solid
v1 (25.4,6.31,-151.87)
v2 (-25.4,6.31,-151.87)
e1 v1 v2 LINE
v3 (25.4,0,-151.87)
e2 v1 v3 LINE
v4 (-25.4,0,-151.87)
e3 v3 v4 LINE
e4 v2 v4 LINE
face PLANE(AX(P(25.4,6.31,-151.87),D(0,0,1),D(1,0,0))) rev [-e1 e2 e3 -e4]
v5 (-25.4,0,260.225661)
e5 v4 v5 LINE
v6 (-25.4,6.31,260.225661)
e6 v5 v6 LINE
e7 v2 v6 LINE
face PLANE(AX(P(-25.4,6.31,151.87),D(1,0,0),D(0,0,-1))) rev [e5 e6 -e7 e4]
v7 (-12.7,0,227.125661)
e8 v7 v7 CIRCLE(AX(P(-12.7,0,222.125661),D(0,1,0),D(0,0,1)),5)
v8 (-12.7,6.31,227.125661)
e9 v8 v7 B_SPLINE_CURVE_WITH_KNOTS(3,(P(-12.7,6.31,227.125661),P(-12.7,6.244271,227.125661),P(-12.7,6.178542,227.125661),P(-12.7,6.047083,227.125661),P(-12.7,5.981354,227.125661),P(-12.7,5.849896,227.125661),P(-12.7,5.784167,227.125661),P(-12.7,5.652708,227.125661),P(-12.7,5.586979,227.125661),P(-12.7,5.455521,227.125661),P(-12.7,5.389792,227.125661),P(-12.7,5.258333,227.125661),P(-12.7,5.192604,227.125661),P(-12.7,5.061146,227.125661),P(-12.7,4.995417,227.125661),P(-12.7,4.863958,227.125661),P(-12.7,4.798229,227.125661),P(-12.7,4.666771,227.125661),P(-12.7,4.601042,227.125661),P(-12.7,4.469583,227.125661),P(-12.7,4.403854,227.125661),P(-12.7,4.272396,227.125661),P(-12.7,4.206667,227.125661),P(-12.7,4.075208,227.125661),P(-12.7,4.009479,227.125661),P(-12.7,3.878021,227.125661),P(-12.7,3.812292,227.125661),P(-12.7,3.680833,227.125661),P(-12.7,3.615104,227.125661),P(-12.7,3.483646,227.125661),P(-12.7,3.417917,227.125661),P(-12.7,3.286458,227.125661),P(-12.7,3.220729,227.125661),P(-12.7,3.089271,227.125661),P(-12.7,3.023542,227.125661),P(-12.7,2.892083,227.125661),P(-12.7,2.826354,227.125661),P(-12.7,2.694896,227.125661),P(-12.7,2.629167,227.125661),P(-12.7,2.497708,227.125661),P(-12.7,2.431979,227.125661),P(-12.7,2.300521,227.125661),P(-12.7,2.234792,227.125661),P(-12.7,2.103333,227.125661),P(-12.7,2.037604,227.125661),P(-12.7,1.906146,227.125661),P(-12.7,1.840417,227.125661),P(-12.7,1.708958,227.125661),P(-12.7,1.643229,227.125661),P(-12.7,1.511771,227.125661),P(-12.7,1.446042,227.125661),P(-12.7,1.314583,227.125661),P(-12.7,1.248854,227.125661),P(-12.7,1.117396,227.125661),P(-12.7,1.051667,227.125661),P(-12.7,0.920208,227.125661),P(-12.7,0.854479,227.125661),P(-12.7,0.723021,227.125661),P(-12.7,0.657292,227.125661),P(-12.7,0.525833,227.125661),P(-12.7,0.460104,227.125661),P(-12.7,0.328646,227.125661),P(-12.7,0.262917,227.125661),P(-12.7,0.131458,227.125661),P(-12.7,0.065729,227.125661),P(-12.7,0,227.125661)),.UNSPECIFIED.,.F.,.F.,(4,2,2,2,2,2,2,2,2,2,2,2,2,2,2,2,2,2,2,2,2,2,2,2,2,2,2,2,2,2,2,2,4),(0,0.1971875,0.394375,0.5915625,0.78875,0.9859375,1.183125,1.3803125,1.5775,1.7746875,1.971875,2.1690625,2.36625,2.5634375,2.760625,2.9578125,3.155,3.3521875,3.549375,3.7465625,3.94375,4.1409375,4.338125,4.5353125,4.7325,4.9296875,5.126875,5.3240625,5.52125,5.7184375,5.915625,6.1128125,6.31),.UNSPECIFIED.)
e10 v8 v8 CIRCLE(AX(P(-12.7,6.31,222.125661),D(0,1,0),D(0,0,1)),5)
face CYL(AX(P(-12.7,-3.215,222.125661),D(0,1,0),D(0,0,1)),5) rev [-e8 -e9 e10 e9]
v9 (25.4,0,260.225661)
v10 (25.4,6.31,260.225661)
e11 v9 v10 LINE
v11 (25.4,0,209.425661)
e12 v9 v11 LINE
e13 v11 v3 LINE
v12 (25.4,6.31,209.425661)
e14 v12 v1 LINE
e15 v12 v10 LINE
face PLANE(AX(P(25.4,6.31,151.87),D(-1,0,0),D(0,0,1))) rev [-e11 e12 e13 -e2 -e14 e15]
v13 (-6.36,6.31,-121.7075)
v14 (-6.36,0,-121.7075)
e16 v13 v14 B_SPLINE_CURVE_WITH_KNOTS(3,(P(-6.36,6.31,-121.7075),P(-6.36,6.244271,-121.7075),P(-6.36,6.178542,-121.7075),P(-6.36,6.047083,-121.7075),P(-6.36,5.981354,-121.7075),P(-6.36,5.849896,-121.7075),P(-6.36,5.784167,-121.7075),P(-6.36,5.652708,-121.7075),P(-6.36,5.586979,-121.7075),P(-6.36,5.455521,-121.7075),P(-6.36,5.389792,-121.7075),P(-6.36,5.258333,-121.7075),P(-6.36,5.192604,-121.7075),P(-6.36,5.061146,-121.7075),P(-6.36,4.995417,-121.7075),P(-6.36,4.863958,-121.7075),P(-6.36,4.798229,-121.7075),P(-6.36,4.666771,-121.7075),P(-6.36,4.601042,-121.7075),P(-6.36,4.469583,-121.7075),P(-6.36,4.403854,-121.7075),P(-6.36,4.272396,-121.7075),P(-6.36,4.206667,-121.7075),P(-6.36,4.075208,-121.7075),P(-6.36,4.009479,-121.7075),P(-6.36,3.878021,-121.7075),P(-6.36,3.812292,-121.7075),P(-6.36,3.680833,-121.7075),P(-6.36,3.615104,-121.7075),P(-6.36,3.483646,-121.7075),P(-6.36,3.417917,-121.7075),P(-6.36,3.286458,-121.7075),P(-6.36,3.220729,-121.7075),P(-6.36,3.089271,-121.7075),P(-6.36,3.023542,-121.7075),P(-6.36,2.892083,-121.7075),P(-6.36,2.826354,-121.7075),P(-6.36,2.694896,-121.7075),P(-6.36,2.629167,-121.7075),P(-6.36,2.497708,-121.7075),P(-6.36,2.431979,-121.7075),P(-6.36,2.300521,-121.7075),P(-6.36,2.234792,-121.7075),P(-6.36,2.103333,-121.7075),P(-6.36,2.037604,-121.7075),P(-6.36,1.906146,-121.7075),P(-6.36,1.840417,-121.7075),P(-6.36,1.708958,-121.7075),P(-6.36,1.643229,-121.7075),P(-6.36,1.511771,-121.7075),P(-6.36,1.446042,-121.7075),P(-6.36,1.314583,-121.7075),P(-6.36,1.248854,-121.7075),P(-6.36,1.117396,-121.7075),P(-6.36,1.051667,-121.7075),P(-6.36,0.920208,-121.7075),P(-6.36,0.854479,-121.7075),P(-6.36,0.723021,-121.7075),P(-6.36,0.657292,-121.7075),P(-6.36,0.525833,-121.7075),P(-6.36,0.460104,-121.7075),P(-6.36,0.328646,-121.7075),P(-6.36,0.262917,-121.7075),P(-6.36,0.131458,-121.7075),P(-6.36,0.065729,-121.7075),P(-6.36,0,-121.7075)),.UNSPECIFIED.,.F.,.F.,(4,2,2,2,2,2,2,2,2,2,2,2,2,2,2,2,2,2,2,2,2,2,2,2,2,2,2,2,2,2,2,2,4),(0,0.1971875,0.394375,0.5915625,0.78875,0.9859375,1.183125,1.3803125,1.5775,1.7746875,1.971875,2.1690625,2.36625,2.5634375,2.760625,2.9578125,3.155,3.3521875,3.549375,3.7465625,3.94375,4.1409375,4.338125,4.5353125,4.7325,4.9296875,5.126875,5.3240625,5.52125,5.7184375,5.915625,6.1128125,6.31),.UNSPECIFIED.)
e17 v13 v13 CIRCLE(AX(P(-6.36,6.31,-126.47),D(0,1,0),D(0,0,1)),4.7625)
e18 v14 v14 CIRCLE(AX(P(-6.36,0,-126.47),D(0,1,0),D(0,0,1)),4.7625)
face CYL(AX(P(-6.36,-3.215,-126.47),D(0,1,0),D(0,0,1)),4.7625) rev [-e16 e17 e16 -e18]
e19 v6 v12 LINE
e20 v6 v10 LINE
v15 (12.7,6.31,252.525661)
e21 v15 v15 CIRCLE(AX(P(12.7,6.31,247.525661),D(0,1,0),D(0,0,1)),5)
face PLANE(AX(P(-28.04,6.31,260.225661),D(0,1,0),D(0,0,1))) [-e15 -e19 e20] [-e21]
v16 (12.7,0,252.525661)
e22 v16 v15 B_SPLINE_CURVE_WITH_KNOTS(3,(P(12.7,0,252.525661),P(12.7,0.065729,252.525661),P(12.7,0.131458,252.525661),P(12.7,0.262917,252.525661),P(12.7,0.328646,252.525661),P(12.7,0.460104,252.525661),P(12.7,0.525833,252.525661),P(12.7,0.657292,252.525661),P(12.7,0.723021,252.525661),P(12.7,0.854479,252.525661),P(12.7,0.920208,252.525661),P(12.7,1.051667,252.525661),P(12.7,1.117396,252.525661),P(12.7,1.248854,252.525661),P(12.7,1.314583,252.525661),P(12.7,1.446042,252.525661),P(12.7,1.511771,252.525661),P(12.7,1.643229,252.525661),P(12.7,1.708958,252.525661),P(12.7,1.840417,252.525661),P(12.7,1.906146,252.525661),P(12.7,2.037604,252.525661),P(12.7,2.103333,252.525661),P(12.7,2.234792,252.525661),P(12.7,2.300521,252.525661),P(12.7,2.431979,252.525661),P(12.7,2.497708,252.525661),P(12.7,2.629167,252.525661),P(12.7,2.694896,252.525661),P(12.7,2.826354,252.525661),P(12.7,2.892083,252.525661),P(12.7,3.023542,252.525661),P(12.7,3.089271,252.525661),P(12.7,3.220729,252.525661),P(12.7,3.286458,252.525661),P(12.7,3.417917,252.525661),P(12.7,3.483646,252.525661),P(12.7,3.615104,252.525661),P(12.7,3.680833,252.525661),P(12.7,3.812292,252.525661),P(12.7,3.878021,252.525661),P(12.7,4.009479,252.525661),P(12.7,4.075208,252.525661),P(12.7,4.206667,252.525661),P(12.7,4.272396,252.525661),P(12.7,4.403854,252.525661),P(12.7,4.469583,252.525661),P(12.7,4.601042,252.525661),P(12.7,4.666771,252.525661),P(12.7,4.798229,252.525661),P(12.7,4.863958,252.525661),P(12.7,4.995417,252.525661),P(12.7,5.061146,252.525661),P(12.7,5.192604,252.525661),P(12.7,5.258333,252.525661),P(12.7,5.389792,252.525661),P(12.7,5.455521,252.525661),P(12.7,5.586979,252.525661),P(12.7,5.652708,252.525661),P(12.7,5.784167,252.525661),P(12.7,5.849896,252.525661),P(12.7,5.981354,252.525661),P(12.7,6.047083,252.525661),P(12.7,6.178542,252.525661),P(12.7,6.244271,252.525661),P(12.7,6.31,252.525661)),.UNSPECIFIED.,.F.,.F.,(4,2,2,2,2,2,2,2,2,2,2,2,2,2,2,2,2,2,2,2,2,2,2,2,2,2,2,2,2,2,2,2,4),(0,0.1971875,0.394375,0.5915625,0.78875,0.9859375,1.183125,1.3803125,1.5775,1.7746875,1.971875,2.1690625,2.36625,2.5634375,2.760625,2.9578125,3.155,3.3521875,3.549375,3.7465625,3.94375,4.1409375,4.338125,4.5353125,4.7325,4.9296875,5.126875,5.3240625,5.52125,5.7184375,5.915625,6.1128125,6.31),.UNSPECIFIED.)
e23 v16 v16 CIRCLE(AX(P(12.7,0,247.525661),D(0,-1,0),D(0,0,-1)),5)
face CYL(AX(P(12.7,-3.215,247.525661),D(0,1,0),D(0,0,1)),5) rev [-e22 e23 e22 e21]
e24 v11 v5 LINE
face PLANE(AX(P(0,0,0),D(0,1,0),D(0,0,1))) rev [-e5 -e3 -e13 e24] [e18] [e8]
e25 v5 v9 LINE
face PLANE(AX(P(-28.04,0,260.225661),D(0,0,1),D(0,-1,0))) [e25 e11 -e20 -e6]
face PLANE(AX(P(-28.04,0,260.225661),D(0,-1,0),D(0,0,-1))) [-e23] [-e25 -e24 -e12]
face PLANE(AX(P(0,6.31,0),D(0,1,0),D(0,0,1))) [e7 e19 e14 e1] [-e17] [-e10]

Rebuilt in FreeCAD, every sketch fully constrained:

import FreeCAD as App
import Part
import Sketcher
Q = App.Units.Quantity


def add_polygon(sketch, points):
    """Adds a closed chain of lines whose ends are joined by coincident constraints."""
    first, n = sketch.GeometryCount, len(points)
    for a, b in zip(points, points[1:] + points[:1]):
        sketch.addGeometry(Part.LineSegment(App.Vector(*a, 0), App.Vector(*b, 0)), False)
    for i in range(n):
        sketch.addConstraint(Sketcher.Constraint("Coincident", first + i, 2, first + (i + 1) % n, 1))

doc = App.newDocument("Part")
body = doc.addObject("PartDesign::Body", "Body")

sketch1 = body.newObject("Sketcher::SketchObject", "Sketch")
sketch1.AttachmentSupport = (doc.getObject("XZ_Plane"), [""])
sketch1.MapMode = "FlatFace"
add_polygon(sketch1, [(-25, -152), (-25, 152), (25, 152), (25, -152)])
sketch1.addConstraint(Sketcher.Constraint("Vertical", 0))
sketch1.addConstraint(Sketcher.Constraint("Horizontal", 1))
sketch1.addConstraint(Sketcher.Constraint("Vertical", 2))
sketch1.addConstraint(Sketcher.Constraint("Horizontal", 3))
sketch1.addConstraint(Sketcher.Constraint("Symmetric", 0, 2, 2, 2, -1, 1))
sketch1.addConstraint(Sketcher.Constraint("DistanceX", 1, 1, 1, 2, Q("50.8 mm")))
sketch1.addConstraint(Sketcher.Constraint("DistanceY", 0, 1, 0, 2, Q("303.74 mm")))
pad1 = body.newObject("PartDesign::Pad", "Pad")
pad1.Profile = sketch1
pad1.Length = 6.31
pad1.Reversed = True

sketch2 = body.newObject("Sketcher::SketchObject", "Sketch001")
sketch2.AttachmentSupport = (doc.getObject("XY_Plane"), [""])
sketch2.MapMode = "FlatFace"
sketch2.AttachmentOffset = App.Placement(App.Vector(0, 0, 151.87), App.Rotation())
add_polygon(sketch2, [(-25, 6), (-25, 0), (25, 0), (25, 6)])
sketch2.addConstraint(Sketcher.Constraint("Vertical", 0))
sketch2.addConstraint(Sketcher.Constraint("Horizontal", 1))
sketch2.addConstraint(Sketcher.Constraint("Vertical", 2))
sketch2.addConstraint(Sketcher.Constraint("Horizontal", 3))
sketch2.addConstraint(Sketcher.Constraint("Symmetric", 0, 2, 1, 2, -1, 1))
sketch2.addConstraint(Sketcher.Constraint("DistanceX", 1, 1, 1, 2, Q("50.8 mm")))
sketch2.addConstraint(Sketcher.Constraint("DistanceY", 0, 2, 0, 1, Q("6.31 mm")))

sketch3 = body.newObject("Sketcher::SketchObject", "Sketch002")
sketch3.AttachmentSupport = (doc.getObject("XZ_Plane"), [""])
sketch3.MapMode = "FlatFace"
sketch3.AttachmentOffset = App.Placement(App.Vector(0, 0, -3.155), App.Rotation())
sketch3.addGeometry(Part.LineSegment(App.Vector(0, 152, 0), App.Vector(0, 235, 0)), False)
sketch3.addGeometry(Part.LineSegment(App.Vector(0, 235, 0), App.Vector(306, 235, 0)), False)
sketch3.addConstraint(Sketcher.Constraint("Coincident", 0, 2, 1, 1))
sketch3.addConstraint(Sketcher.Constraint("Vertical", 0))
sketch3.addConstraint(Sketcher.Constraint("Horizontal", 1))
sketch3.addConstraint(Sketcher.Constraint("PointOnObject", 0, 1, -2))
sketch3.addConstraint(Sketcher.Constraint("DistanceX", 1, 1, 1, 2, Q("306 mm")))
sketch3.addConstraint(Sketcher.Constraint("DistanceY", -1, 1, 0, 1, Q("151.87 mm")))
sketch3.addConstraint(Sketcher.Constraint("DistanceY", 0, 1, 0, 2, Q("82.955661 mm")))
doc.recompute()

additivepipe = body.newObject("PartDesign::AdditivePipe", "AdditivePipe")
additivepipe.Profile = sketch2
additivepipe.Spine = (sketch3, ["Edge1", "Edge2"])
additivepipe.Transition = "Right corner"

sketch4 = body.newObject("Sketcher::SketchObject", "Sketch003")
sketch4.AttachmentSupport = (doc.getObject("XZ_Plane"), [""])
sketch4.MapMode = "FlatFace"
add_polygon(sketch4, [(300, 260), (300, 209), (306, 209), (306, 260)])
sketch4.addConstraint(Sketcher.Constraint("Vertical", 0))
sketch4.addConstraint(Sketcher.Constraint("Horizontal", 1))
sketch4.addConstraint(Sketcher.Constraint("Vertical", 2))
sketch4.addConstraint(Sketcher.Constraint("Horizontal", 3))
sketch4.addConstraint(Sketcher.Constraint("DistanceY", 0, 2, 0, 1, Q("50.8 mm")))
sketch4.addConstraint(Sketcher.Constraint("DistanceX", -1, 1, 1, 2, Q("306 mm")))
sketch4.addConstraint(Sketcher.Constraint("DistanceX", 1, 1, 1, 2, Q("6.31 mm")))
sketch4.addConstraint(Sketcher.Constraint("DistanceY", -1, 1, 0, 2, Q("209.425661 mm")))
pad2 = body.newObject("PartDesign::Pad", "Pad001")
pad2.Profile = sketch4
pad2.Length = 60

sketch5 = body.newObject("Sketcher::SketchObject", "Sketch004")
sketch5.AttachmentSupport = (doc.getObject("XZ_Plane"), [""])
sketch5.MapMode = "FlatFace"
sketch5.AttachmentOffset = App.Placement(App.Vector(0, 0, -6.31), App.Rotation())
add_polygon(sketch5, [(19, -152), (19, -101), (25, -101), (25, -152)])
sketch5.addConstraint(Sketcher.Constraint("Vertical", 0))
sketch5.addConstraint(Sketcher.Constraint("Horizontal", 1))
sketch5.addConstraint(Sketcher.Constraint("Vertical", 2))
sketch5.addConstraint(Sketcher.Constraint("Horizontal", 3))
sketch5.addConstraint(Sketcher.Constraint("DistanceY", 0, 1, 0, 2, Q("50.8 mm")))
sketch5.addConstraint(Sketcher.Constraint("DistanceX", 1, 1, 1, 2, Q("6.31 mm")))
sketch5.addConstraint(Sketcher.Constraint("DistanceX", -1, 1, 1, 2, Q("25.4 mm")))
sketch5.addConstraint(Sketcher.Constraint("DistanceY", 0, 2, -1, 1, Q("101.07 mm")))
pad3 = body.newObject("PartDesign::Pad", "Pad002")
pad3.Profile = sketch5
pad3.Length = 50
pad3.Reversed = True

sketch6 = body.newObject("Sketcher::SketchObject", "Sketch005")
sketch6.AttachmentSupport = (doc.getObject("YZ_Plane"), [""])
sketch6.MapMode = "FlatFace"
sketch6.AttachmentOffset = App.Placement(App.Vector(0, 0, 19.09), App.Rotation())
sketch6.addGeometry(Part.Circle(App.Vector(29, -111, 0), App.Vector(0, 0, 1), 6), False)
sketch6.addGeometry(Part.Circle(App.Vector(29, -143, 0), App.Vector(0, 0, 1), 6), False)
sketch6.addConstraint(Sketcher.Constraint("Equal", 0, 1))
sketch6.addConstraint(Sketcher.Constraint("Vertical", 0, 3, 1, 3))
sketch6.addConstraint(Sketcher.Constraint("Diameter", 0, Q("12.7 mm")))
sketch6.addConstraint(Sketcher.Constraint("DistanceX", -1, 1, 0, 3, Q("29 mm")))
sketch6.addConstraint(Sketcher.Constraint("DistanceY", 1, 3, 0, 3, Q("32 mm")))
sketch6.addConstraint(Sketcher.Constraint("DistanceY", 0, 3, -1, 1, Q("111.12 mm")))
pocket1 = body.newObject("PartDesign::Pocket", "Pocket")
pocket1.Profile = sketch6
pocket1.Length = 10
pocket1.Reversed = True

sketch7 = body.newObject("Sketcher::SketchObject", "Sketch006")
sketch7.AttachmentSupport = (doc.getObject("YZ_Plane"), [""])
sketch7.MapMode = "FlatFace"
sketch7.AttachmentOffset = App.Placement(App.Vector(0, 0, 306), App.Rotation())
add_polygon(sketch7, [(-9, 260), (-60, 260), (-60, 254), (-9, 254)])
sketch7.addConstraint(Sketcher.Constraint("Horizontal", 0))
sketch7.addConstraint(Sketcher.Constraint("Vertical", 1))
sketch7.addConstraint(Sketcher.Constraint("Horizontal", 2))
sketch7.addConstraint(Sketcher.Constraint("Vertical", 3))
sketch7.addConstraint(Sketcher.Constraint("DistanceX", 0, 2, 0, 1, Q("50.8 mm")))
sketch7.addConstraint(Sketcher.Constraint("DistanceX", 0, 2, -1, 1, Q("60 mm")))
sketch7.addConstraint(Sketcher.Constraint("DistanceY", 1, 2, 1, 1, Q("6.31 mm")))
sketch7.addConstraint(Sketcher.Constraint("DistanceY", -1, 1, 0, 2, Q("260.225661 mm")))
pad4 = body.newObject("PartDesign::Pad", "Pad003")
pad4.Profile = sketch7
pad4.Length = 50.8

sketch8 = body.newObject("Sketcher::SketchObject", "Sketch007")
sketch8.AttachmentSupport = (doc.getObject("YZ_Plane"), [""])
sketch8.MapMode = "FlatFace"
sketch8.AttachmentOffset = App.Placement(App.Vector(0, 0, 19.09), App.Rotation())
add_polygon(sketch8, [(56, -152), (6, -152), (6, -101), (56, -101)])
sketch8.addConstraint(Sketcher.Constraint("Horizontal", 0))
sketch8.addConstraint(Sketcher.Constraint("Vertical", 1))
sketch8.addConstraint(Sketcher.Constraint("Horizontal", 2))
sketch8.addConstraint(Sketcher.Constraint("Vertical", 3))
sketch8.addConstraint(Sketcher.Constraint("DistanceX", 0, 2, 0, 1, Q("50 mm")))
sketch8.addConstraint(Sketcher.Constraint("DistanceY", 1, 1, 1, 2, Q("50.8 mm")))
sketch8.addConstraint(Sketcher.Constraint("DistanceX", -1, 1, 0, 2, Q("6.31 mm")))
sketch8.addConstraint(Sketcher.Constraint("DistanceY", 0, 2, -1, 1, Q("151.87 mm")))
pocket2 = body.newObject("PartDesign::Pocket", "Pocket001")
pocket2.Profile = sketch8
pocket2.Length = 10
pocket2.Reversed = True

sketch9 = body.newObject("Sketcher::SketchObject", "Sketch008")
sketch9.AttachmentSupport = (doc.getObject("XZ_Plane"), [""])
sketch9.MapMode = "FlatFace"
sketch9.AttachmentOffset = App.Placement(App.Vector(0, 0, -6.31), App.Rotation())
add_polygon(sketch9, [(25, 209), (25, 260), (367, 260), (367, 209)])
sketch9.addConstraint(Sketcher.Constraint("Vertical", 0))
sketch9.addConstraint(Sketcher.Constraint("Horizontal", 1))
sketch9.addConstraint(Sketcher.Constraint("Vertical", 2))
sketch9.addConstraint(Sketcher.Constraint("Horizontal", 3))
sketch9.addConstraint(Sketcher.Constraint("DistanceY", 0, 1, 0, 2, Q("50.8 mm")))
sketch9.addConstraint(Sketcher.Constraint("DistanceX", -1, 1, 0, 2, Q("25.4 mm")))
sketch9.addConstraint(Sketcher.Constraint("DistanceX", 1, 1, 1, 2, Q("341.529605 mm")))
sketch9.addConstraint(Sketcher.Constraint("DistanceY", -1, 1, 0, 2, Q("260.225661 mm")))
pocket3 = body.newObject("PartDesign::Pocket", "Pocket002")
pocket3.Profile = sketch9
pocket3.Length = 97.8
pocket3.Reversed = True

sketch10 = body.newObject("Sketcher::SketchObject", "Sketch009")
sketch10.AttachmentSupport = (doc.getObject("XZ_Plane"), [""])
sketch10.MapMode = "FlatFace"
sketch10.AttachmentOffset = App.Placement(App.Vector(0, 0, -6.31), App.Rotation())
sketch10.addGeometry(Part.Circle(App.Vector(-6.4, -126.5, 0), App.Vector(0, 0, 1), 4.8), False)
sketch10.addConstraint(Sketcher.Constraint("Diameter", 0, Q("9.525 mm")))
sketch10.addConstraint(Sketcher.Constraint("DistanceX", 0, 3, -1, 1, Q("6.36 mm")))
sketch10.addConstraint(Sketcher.Constraint("DistanceY", 0, 3, -1, 1, Q("126.47 mm")))
pocket4 = body.newObject("PartDesign::Pocket", "Pocket003")
pocket4.Profile = sketch10
pocket4.Length = 9.525
pocket4.Reversed = True

sketch11 = body.newObject("Sketcher::SketchObject", "Sketch010")
sketch11.AttachmentSupport = (doc.getObject("XZ_Plane"), [""])
sketch11.MapMode = "FlatFace"
sketch11.AttachmentOffset = App.Placement(App.Vector(0, 0, -6.31), App.Rotation())
sketch11.addGeometry(Part.Circle(App.Vector(13, 248, 0), App.Vector(0, 0, 1), 5), False)
sketch11.addGeometry(Part.Circle(App.Vector(-13, 222, 0), App.Vector(0, 0, 1), 5), False)
sketch11.addConstraint(Sketcher.Constraint("Equal", 0, 1))
sketch11.addConstraint(Sketcher.Constraint("Diameter", 0, Q("10 mm")))
sketch11.addConstraint(Sketcher.Constraint("DistanceX", -1, 1, 0, 3, Q("12.7 mm")))
sketch11.addConstraint(Sketcher.Constraint("DistanceX", 1, 3, -1, 1, Q("12.7 mm")))
sketch11.addConstraint(Sketcher.Constraint("DistanceY", 1, 3, 0, 3, Q("25.4 mm")))
sketch11.addConstraint(Sketcher.Constraint("DistanceY", -1, 1, 0, 3, Q("247.525661 mm")))
pocket5 = body.newObject("PartDesign::Pocket", "Pocket004")
pocket5.Profile = sketch11
pocket5.Length = 9.525
pocket5.Reversed = True

doc.recompute()
